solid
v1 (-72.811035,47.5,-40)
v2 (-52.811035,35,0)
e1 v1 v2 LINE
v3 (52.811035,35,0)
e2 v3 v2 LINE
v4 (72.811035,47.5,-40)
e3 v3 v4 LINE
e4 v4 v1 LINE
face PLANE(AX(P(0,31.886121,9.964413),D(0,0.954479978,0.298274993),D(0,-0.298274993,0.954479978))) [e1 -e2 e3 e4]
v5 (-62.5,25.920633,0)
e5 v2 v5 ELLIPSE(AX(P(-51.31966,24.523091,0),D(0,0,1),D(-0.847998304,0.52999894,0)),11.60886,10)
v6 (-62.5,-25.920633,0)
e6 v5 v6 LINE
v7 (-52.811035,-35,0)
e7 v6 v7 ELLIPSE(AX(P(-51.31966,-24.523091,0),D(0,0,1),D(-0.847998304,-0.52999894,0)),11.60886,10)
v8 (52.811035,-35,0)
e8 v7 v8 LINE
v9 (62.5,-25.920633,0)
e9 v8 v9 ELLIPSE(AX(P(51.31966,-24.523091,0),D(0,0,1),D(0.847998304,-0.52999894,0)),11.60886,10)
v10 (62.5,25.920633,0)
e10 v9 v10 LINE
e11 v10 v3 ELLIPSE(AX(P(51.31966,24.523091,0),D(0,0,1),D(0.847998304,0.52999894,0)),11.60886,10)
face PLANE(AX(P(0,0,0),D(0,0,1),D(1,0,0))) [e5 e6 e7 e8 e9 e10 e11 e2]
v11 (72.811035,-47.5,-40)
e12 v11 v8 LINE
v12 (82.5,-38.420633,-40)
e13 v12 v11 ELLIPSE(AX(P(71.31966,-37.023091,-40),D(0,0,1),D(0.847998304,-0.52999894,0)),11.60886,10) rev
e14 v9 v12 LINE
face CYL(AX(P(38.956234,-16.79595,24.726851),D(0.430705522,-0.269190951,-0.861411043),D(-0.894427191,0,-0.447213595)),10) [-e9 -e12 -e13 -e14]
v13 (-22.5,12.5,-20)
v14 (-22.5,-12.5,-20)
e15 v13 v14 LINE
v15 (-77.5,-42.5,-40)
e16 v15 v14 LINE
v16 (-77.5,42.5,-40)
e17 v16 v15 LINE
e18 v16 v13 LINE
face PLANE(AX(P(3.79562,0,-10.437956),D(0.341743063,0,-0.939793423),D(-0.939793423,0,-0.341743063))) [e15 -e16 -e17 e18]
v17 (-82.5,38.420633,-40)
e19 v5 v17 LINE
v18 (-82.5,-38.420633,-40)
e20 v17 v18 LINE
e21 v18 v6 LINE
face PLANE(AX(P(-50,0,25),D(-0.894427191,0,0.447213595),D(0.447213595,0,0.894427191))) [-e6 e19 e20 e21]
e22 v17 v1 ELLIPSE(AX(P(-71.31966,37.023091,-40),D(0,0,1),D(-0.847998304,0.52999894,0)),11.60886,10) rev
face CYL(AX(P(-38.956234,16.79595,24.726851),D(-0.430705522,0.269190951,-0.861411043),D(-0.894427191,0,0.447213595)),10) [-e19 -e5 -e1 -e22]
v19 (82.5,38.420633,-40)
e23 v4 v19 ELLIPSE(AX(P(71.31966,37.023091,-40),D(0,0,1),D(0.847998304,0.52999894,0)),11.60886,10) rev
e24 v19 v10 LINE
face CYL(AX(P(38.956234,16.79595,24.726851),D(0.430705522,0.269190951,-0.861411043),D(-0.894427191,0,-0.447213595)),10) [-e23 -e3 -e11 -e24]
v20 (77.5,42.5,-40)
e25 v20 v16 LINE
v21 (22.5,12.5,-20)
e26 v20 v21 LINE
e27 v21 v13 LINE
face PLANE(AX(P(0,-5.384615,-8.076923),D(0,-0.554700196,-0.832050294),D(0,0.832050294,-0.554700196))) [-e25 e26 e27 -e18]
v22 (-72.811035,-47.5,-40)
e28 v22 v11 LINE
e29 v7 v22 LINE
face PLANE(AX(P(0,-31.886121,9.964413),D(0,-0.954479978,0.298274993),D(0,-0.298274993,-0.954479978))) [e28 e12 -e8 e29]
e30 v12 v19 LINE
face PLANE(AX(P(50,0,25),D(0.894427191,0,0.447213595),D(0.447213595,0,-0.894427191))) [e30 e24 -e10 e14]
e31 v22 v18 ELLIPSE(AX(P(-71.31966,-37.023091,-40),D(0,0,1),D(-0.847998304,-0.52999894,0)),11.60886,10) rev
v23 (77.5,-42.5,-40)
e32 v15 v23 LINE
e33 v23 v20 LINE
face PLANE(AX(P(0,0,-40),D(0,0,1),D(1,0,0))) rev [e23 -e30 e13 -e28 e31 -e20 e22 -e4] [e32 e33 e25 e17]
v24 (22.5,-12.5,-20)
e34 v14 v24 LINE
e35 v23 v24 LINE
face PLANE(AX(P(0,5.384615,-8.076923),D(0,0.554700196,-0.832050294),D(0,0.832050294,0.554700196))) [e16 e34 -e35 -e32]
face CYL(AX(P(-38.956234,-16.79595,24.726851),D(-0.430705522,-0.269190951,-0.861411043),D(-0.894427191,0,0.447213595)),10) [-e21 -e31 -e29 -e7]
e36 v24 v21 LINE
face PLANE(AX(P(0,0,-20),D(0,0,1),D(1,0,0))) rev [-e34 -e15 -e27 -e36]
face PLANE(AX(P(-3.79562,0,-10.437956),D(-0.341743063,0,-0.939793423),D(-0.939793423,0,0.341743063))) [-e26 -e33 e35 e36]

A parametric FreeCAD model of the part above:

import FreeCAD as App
import Part
import Sketcher
from FreeCAD import Vector
Q = App.Units.Quantity


def edges_at(feature, points):
    """Names of the edges that pass closest to the given points."""
    edges = feature.Shape.Edges
    near = lambda p: min(range(len(edges)), key=lambda i: edges[i].distToShape(Part.Vertex(*p))[0])
    return sorted({f"Edge{near(p) + 1}" for p in points})


def add_polygon(sketch, points):
    """Adds a closed chain of lines whose ends are joined by coincident constraints."""
    first, n = sketch.GeometryCount, len(points)
    for a, b in zip(points, points[1:] + points[:1]):
        sketch.addGeometry(Part.LineSegment(App.Vector(*a, 0), App.Vector(*b, 0)), False)
    for i in range(n):
        sketch.addConstraint(Sketcher.Constraint("Coincident", first + i, 2, first + (i + 1) % n, 1))

doc = App.newDocument("Part")
body = doc.addObject("PartDesign::Body", "Body")

# Sketch on XY plane
sketch1 = body.newObject("Sketcher::SketchObject", "Sketch")
sketch1.AttachmentSupport = (doc.getObject("XY_Plane"), [""])
sketch1.MapMode = "FlatFace"
add_polygon(sketch1, [(-62, -35), (62, -35), (62, 35), (-62, 35)])  # lines 0-3
sketch1.addConstraint([
    Sketcher.Constraint("Horizontal", 0),
    Sketcher.Constraint("Vertical", 1),
    Sketcher.Constraint("Horizontal", 2),
    Sketcher.Constraint("Vertical", 3),
    Sketcher.Constraint("Symmetric", 0, 2, 2, 2, -1, 1),
    Sketcher.Constraint("DistanceX", 0, 1, 0, 2, Q("125 mm")),
    Sketcher.Constraint("DistanceY", 1, 1, 1, 2, Q("70 mm")),
])

# Sketch on XY plane
sketch2 = body.newObject("Sketcher::SketchObject", "Sketch001")
sketch2.AttachmentSupport = (doc.getObject("XY_Plane"), [""])
sketch2.MapMode = "FlatFace"
sketch2.AttachmentOffset = App.Placement(Vector(0, 0, -40), App.Rotation())
add_polygon(sketch2, [(-82, -48), (82, -48), (82, 48), (-82, 48)])  # lines 0-3
sketch2.addConstraint([
    Sketcher.Constraint("Horizontal", 0),
    Sketcher.Constraint("Vertical", 1),
    Sketcher.Constraint("Horizontal", 2),
    Sketcher.Constraint("Vertical", 3),
    Sketcher.Constraint("Symmetric", 0, 2, 2, 2, -1, 1),
    Sketcher.Constraint("DistanceX", 0, 1, 0, 2, Q("165 mm")),
    Sketcher.Constraint("DistanceY", 1, 1, 1, 2, Q("95 mm")),
])

additiveloft = body.newObject("PartDesign::AdditiveLoft", "AdditiveLoft")
additiveloft.Profile = sketch1
additiveloft.Sections = [sketch2]

# Sketch on XY plane
sketch3 = body.newObject("Sketcher::SketchObject", "Sketch002")
sketch3.AttachmentSupport = (doc.getObject("XY_Plane"), [""])
sketch3.MapMode = "FlatFace"
sketch3.AttachmentOffset = App.Placement(Vector(0, 0, -40), App.Rotation())
add_polygon(sketch3, [(-78, -42), (78, -42), (78, 42), (-78, 42)])  # lines 0-3
sketch3.addConstraint([
    Sketcher.Constraint("Horizontal", 0),
    Sketcher.Constraint("Vertical", 1),
    Sketcher.Constraint("Horizontal", 2),
    Sketcher.Constraint("Vertical", 3),
    Sketcher.Constraint("Symmetric", 0, 2, 2, 2, -1, 1),
    Sketcher.Constraint("DistanceX", 0, 1, 0, 2, Q("155 mm")),
    Sketcher.Constraint("DistanceY", 1, 1, 1, 2, Q("85 mm")),
])

# Sketch on XY plane
sketch4 = body.newObject("Sketcher::SketchObject", "Sketch003")
sketch4.AttachmentSupport = (doc.getObject("XY_Plane"), [""])
sketch4.MapMode = "FlatFace"
sketch4.AttachmentOffset = App.Placement(Vector(0, 0, -20), App.Rotation())
add_polygon(sketch4, [(-22, -12), (22, -12), (22, 12), (-22, 12)])  # lines 0-3
sketch4.addConstraint([
    Sketcher.Constraint("Horizontal", 0),
    Sketcher.Constraint("Vertical", 1),
    Sketcher.Constraint("Horizontal", 2),
    Sketcher.Constraint("Vertical", 3),
    Sketcher.Constraint("Symmetric", 0, 2, 2, 2, -1, 1),
    Sketcher.Constraint("DistanceX", 0, 1, 0, 2, Q("45 mm")),
    Sketcher.Constraint("DistanceY", 1, 1, 1, 2, Q("25 mm")),
])

subtractiveloft = body.newObject("PartDesign::SubtractiveLoft", "SubtractiveLoft")
subtractiveloft.Profile = sketch3
subtractiveloft.Sections = [sketch4]
doc.recompute()

fillet = body.newObject("PartDesign::Fillet", "Fillet")
fillet.Base = (subtractiveloft, edges_at(subtractiveloft, [
    (-72.5, -41.25, -20),
    (-72.5, 41.25, -20),
    (72.5, -41.25, -20),
    (72.5, 41.25, -20),
]))
fillet.Radius = 10

doc.recompute()
